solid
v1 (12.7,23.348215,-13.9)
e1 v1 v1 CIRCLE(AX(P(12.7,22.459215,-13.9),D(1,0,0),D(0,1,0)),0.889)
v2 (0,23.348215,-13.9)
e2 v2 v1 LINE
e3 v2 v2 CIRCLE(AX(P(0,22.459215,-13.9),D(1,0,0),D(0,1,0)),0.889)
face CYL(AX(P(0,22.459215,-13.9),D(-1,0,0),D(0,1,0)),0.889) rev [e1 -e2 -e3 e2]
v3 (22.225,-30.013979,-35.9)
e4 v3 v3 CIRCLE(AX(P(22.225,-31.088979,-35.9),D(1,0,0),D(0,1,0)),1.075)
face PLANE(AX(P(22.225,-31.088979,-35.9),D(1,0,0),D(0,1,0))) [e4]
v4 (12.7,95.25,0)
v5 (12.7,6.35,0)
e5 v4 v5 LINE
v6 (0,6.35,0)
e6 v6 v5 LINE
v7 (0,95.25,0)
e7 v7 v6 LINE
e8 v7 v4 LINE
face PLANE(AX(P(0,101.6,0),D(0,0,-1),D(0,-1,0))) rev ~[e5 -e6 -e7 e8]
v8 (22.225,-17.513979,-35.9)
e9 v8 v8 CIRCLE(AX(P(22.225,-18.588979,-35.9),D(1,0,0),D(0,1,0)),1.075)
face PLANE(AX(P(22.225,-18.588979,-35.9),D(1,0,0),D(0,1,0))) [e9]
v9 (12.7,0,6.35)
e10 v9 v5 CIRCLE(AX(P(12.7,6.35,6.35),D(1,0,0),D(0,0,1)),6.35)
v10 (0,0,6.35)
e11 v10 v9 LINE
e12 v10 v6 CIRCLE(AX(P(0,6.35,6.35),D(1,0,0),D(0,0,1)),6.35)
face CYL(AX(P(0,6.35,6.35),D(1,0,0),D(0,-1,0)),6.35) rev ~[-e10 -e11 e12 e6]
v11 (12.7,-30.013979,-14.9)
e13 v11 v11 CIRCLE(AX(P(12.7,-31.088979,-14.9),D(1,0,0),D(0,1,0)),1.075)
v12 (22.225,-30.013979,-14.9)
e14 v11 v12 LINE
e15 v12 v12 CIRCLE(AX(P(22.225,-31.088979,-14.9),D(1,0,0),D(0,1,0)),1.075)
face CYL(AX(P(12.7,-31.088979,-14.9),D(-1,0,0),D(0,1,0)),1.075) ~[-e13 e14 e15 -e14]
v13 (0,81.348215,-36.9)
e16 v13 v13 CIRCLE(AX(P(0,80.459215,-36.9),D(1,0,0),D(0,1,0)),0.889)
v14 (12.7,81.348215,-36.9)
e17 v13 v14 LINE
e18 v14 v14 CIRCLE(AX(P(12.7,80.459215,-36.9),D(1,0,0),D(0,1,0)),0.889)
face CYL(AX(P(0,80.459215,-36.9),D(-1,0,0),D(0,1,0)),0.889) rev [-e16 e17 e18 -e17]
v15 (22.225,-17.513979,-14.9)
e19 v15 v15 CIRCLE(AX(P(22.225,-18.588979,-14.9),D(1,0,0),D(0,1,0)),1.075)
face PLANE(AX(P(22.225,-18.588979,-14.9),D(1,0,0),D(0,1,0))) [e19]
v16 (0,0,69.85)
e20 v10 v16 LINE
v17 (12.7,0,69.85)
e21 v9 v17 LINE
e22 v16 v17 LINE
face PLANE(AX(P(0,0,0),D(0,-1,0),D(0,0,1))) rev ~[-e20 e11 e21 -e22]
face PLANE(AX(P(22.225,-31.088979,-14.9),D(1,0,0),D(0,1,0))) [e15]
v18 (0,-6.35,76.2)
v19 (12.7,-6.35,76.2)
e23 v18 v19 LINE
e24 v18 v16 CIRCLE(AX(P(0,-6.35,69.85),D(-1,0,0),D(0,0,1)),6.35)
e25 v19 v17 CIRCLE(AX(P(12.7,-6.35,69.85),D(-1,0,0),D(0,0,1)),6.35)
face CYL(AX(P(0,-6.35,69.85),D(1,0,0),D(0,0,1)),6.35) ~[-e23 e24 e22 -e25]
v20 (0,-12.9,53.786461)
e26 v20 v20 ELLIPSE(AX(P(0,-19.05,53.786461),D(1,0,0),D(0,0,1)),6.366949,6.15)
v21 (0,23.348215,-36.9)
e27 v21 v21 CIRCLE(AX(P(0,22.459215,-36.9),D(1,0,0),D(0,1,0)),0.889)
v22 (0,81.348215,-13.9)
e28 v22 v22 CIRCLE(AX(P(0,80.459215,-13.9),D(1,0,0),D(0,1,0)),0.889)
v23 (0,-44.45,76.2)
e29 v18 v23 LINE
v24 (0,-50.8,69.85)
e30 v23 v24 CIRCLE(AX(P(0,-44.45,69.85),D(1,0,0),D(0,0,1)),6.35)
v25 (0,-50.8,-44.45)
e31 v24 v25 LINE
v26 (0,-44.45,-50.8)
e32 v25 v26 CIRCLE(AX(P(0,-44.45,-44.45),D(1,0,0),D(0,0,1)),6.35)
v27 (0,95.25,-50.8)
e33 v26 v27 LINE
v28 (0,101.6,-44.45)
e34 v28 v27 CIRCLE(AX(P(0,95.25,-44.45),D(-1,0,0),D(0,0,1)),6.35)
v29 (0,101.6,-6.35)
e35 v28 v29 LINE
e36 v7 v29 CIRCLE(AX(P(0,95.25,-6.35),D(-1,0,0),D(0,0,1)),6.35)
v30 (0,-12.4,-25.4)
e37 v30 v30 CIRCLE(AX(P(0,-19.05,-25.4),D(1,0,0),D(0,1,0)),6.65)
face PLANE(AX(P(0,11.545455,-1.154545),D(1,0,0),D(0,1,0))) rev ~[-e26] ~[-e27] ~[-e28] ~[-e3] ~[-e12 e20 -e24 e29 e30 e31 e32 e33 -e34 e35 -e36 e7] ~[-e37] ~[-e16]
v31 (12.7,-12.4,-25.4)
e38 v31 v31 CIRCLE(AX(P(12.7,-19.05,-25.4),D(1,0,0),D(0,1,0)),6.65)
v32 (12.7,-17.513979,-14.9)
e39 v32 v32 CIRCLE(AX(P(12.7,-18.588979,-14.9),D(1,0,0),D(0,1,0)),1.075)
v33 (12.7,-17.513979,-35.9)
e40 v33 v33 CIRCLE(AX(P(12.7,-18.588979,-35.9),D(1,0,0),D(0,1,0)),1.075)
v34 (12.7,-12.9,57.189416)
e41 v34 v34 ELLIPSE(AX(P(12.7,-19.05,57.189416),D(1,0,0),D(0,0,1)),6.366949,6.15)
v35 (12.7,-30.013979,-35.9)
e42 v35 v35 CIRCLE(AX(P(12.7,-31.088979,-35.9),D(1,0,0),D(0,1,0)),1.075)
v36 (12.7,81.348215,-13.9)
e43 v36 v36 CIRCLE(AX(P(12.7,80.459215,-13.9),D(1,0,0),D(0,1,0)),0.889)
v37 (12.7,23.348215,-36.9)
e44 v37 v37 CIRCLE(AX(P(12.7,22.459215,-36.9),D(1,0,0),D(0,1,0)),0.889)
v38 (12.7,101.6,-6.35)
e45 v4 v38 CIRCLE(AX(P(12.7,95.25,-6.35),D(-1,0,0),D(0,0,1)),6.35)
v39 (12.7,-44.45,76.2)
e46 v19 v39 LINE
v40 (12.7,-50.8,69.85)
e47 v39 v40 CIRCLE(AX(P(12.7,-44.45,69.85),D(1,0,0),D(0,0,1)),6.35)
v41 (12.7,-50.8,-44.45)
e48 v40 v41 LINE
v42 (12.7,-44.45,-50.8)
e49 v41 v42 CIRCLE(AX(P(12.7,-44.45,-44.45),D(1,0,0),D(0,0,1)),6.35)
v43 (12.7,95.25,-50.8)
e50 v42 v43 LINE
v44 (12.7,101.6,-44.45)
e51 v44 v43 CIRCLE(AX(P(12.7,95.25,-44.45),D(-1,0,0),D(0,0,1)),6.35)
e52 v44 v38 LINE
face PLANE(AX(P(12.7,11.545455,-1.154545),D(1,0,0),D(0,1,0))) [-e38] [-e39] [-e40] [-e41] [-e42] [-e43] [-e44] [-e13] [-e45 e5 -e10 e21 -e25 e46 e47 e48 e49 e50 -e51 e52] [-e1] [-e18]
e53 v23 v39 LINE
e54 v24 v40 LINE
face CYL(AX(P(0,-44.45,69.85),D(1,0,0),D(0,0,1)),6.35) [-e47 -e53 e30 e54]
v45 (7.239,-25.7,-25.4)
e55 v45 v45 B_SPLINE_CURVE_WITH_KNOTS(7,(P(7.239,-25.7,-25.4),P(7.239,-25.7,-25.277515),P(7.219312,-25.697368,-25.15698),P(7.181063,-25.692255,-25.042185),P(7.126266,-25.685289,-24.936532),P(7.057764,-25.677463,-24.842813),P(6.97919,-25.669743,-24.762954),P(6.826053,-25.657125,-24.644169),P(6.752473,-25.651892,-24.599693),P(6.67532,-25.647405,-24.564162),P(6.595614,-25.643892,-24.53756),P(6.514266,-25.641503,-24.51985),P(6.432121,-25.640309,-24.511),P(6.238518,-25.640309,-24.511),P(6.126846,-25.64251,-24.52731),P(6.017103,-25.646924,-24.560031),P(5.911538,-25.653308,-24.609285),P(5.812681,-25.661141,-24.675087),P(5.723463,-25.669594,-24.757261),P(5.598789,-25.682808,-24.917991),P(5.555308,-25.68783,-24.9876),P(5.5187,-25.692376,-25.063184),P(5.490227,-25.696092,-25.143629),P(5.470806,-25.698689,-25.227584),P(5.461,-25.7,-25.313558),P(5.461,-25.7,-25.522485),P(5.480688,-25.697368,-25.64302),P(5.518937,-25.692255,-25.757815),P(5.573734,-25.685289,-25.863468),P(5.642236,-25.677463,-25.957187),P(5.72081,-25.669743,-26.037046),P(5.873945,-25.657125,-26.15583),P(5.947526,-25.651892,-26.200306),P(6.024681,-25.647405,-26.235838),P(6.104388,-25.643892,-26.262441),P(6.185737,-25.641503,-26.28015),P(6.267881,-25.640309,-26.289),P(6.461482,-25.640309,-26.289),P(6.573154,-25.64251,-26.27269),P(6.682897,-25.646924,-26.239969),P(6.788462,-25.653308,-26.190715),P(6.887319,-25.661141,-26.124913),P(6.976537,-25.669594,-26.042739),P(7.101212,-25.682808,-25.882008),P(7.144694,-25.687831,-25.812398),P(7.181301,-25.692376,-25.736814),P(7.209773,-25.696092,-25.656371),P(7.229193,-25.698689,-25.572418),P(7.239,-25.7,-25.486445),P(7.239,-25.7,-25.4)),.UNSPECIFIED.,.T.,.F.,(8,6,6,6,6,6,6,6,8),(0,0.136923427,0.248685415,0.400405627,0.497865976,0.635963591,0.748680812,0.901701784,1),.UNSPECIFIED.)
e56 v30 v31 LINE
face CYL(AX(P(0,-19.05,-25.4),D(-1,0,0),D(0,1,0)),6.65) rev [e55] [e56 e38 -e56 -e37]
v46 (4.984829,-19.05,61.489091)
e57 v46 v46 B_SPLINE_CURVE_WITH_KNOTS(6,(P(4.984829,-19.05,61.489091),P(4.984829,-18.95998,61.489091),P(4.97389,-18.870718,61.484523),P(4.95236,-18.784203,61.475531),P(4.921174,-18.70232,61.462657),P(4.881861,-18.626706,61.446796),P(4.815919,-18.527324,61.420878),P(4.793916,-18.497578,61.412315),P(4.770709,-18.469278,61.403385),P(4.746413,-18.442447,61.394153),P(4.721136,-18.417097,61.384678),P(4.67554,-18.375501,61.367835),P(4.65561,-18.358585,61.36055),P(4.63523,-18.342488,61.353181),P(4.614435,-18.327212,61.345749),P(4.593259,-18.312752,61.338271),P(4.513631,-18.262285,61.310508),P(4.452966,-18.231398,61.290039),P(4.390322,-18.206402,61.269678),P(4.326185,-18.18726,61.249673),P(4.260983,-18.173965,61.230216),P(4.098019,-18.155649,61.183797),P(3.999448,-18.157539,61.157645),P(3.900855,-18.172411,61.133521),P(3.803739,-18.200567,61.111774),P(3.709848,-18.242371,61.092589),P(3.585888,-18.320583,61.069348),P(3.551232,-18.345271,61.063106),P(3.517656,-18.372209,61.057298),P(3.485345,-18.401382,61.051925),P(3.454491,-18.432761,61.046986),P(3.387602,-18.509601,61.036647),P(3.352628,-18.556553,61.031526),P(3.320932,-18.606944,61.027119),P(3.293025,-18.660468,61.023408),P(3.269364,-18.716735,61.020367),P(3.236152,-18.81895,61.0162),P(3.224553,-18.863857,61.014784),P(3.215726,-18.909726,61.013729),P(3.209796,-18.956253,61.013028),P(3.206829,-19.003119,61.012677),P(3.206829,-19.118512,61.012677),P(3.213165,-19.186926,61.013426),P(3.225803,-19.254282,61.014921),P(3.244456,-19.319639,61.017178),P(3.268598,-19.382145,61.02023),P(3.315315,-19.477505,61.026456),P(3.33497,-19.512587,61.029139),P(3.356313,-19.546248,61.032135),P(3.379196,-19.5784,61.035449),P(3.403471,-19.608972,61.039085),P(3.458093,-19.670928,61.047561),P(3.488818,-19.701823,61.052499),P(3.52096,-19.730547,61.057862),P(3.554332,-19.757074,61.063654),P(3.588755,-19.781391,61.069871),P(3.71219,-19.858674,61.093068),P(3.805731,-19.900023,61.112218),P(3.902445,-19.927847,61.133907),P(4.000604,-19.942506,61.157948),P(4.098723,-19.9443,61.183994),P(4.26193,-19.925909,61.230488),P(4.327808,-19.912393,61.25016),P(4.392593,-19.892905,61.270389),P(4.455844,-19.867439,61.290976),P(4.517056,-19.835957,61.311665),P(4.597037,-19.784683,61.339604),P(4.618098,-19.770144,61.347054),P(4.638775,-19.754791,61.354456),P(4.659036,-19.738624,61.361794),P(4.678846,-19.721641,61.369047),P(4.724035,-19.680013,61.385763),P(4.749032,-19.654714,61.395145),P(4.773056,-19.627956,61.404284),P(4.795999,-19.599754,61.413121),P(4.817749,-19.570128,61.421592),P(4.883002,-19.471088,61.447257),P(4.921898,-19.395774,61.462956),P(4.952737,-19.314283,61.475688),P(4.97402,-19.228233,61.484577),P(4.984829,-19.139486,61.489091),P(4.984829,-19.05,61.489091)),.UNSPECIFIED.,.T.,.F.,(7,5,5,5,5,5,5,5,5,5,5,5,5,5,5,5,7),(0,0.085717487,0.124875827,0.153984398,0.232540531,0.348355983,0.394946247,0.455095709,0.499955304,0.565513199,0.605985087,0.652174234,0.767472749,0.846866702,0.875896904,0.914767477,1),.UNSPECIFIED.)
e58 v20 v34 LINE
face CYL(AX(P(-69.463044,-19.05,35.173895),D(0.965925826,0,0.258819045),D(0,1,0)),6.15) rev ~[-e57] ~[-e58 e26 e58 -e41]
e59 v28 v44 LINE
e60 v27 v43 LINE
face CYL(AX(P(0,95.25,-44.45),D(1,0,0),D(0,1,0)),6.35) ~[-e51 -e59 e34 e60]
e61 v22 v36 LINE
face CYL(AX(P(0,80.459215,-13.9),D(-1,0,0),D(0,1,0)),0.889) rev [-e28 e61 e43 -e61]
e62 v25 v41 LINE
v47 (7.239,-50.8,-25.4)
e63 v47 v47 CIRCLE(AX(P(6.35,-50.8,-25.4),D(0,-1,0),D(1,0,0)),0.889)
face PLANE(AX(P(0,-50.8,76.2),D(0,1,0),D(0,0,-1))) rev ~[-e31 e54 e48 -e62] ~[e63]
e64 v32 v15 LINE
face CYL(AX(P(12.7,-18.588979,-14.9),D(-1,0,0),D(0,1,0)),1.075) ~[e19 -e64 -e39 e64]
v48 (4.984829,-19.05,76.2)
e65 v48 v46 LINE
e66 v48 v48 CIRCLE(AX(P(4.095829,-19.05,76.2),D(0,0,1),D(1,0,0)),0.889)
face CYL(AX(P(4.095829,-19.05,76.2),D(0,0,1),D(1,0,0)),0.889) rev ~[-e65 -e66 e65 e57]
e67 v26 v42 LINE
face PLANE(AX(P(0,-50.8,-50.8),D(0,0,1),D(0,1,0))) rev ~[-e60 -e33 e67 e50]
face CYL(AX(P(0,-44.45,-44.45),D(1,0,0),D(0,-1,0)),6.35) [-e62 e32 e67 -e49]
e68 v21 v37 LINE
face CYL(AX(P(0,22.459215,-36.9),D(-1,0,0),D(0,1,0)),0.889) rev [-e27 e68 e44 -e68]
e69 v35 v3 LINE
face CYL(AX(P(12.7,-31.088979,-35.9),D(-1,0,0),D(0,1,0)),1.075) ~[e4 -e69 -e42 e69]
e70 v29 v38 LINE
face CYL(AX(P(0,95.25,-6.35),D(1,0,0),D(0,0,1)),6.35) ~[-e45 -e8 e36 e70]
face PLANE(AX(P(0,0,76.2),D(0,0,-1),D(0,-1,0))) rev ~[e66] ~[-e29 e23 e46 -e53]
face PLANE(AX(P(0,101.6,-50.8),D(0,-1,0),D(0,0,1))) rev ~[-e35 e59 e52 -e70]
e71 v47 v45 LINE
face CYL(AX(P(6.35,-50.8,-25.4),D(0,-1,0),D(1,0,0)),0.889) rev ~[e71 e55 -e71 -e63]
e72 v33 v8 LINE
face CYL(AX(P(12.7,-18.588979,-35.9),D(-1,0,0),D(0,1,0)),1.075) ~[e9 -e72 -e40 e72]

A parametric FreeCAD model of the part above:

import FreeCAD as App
import Part
import Sketcher
Q = App.Units.Quantity


def edges_at(feature, points):
    """Names of the edges that pass closest to the given points."""
    edges = feature.Shape.Edges
    near = lambda p: min(range(len(edges)), key=lambda i: edges[i].distToShape(Part.Vertex(*p))[0])
    return sorted({f"Edge{near(p) + 1}" for p in points})

doc = App.newDocument("Part")
params = doc.addObject("Spreadsheet::Sheet", "Params")
for row, (alias, value) in enumerate([
    ("sketch1_diameter", "0.07 in"),
    ("sketch1_width", "2 in"),
    ("sketch1_width2", "6 in"),
    ("sketch1_height", "5 in"),
    ("pad1_length", "0.5 in"),
    ("pad2_length", "0.375 in"),
    ("fillet_radius", "0.25 in"),
    ("fillet2_radius", "0.25 in"),
    ("fillet3_radius", "0.25 in"),
    ("sketch4_width", "5 in"),
    ("sketch5_diameter", "0.07 in"),
    ("pocket1_length", "15.188323 mm"),
    ("sketch6_diameter", "0.07 in"),
    ("pocket2_length", "25.160691 mm"),
], start=1):
    params.set(f"A{row}", alias)
    params.set(f"B{row}", "=" + value)
    params.setAlias(f"B{row}", alias)

body = doc.addObject("PartDesign::Body", "Body")

sketch1 = body.newObject("Sketcher::SketchObject", "Sketch")
sketch1.AttachmentSupport = (doc.getObject("YZ_Plane"), [""])
sketch1.MapMode = "FlatFace"
sketch1.addGeometry([
    Part.LineSegment(App.Vector(0, 76.2, 0), App.Vector(-50.8, 76.2, 0)),
    Part.LineSegment(App.Vector(-50.8, 76.2, 0), App.Vector(-50.8, -50.8, 0)),
    Part.LineSegment(App.Vector(-50.8, -50.8, 0), App.Vector(101.6, -50.8, 0)),
    Part.LineSegment(App.Vector(101.6, -50.8, 0), App.Vector(101.6, 0, 0)),
    Part.LineSegment(App.Vector(101.6, 0, 0), App.Vector(0, 0, 0)),
    Part.LineSegment(App.Vector(0, 0, 0), App.Vector(0, 76.2, 0)),
    Part.Circle(App.Vector(22.459215, -36.9, 0), App.Vector(0, 0, 1), 0.889),
    Part.Circle(App.Vector(80.459215, -36.9, 0), App.Vector(0, 0, 1), 0.889),
    Part.Circle(App.Vector(-19.05, -25.4, 0), App.Vector(0, 0, 1), 6.65),
    Part.Circle(App.Vector(22.459215, -13.9, 0), App.Vector(0, 0, 1), 0.889),
    Part.Circle(App.Vector(80.459215, -13.9, 0), App.Vector(0, 0, 1), 0.889),
], False)
sketch1.addConstraint([
    Sketcher.Constraint("Coincident", 0, 2, 1, 1),
    Sketcher.Constraint("Coincident", 1, 2, 2, 1),
    Sketcher.Constraint("Coincident", 2, 2, 3, 1),
    Sketcher.Constraint("Coincident", 3, 2, 4, 1),
    Sketcher.Constraint("Coincident", 4, 2, 5, 1),
    Sketcher.Constraint("Coincident", 5, 2, 0, 1),
    Sketcher.Constraint("Horizontal", 0),
    Sketcher.Constraint("Vertical", 1),
    Sketcher.Constraint("Horizontal", 2),
    Sketcher.Constraint("Vertical", 3),
    Sketcher.Constraint("Horizontal", 4),
    Sketcher.Constraint("Vertical", 5),
    Sketcher.Constraint("Coincident", 4, 2, -1, 1),
    Sketcher.Constraint("Equal", 6, 7),
    Sketcher.Constraint("Equal", 7, 9),
    Sketcher.Constraint("Equal", 9, 10),
    Sketcher.Constraint("Horizontal", 6, 3, 7, 3),
    Sketcher.Constraint("Horizontal", 9, 3, 10, 3),
    Sketcher.Constraint("Vertical", 6, 3, 9, 3),
    Sketcher.Constraint("Vertical", 7, 3, 10, 3),
    Sketcher.Constraint("Equal", 0, 3),
    Sketcher.Constraint("Diameter", 6, Q("0.07 in")),
    Sketcher.Constraint("DistanceX", 0, 2, 0, 1, Q("2 in")),
    Sketcher.Constraint("DistanceX", 2, 1, 2, 2, Q("6 in")),
    Sketcher.Constraint("DistanceY", 1, 2, 1, 1, Q("5 in")),
    Sketcher.Constraint("DistanceY", 8, 3, -1, 1, Q("1 in")),
    Sketcher.Constraint("Diameter", 8, 13.3),
    Sketcher.Constraint("DistanceX", 8, 3, -1, 1, Q("0.75 in")),
    Sketcher.Constraint("DistanceY", 6, 3, -1, 1, 36.9),
    Sketcher.Constraint("DistanceY", 9, 3, -1, 1, 13.9),
    Sketcher.Constraint("DistanceX", 6, 3, 7, 3, 58.0),
    Sketcher.Constraint("DistanceX", -1, 1, 6, 3, 22.459215),
])
sketch1.setExpression("Constraints[21]", "Params.sketch1_diameter")
sketch1.setExpression("Constraints[22]", "Params.sketch1_width")
sketch1.setExpression("Constraints[23]", "Params.sketch1_width2")
sketch1.setExpression("Constraints[24]", "Params.sketch1_height")
pad1 = body.newObject("PartDesign::Pad", "Pad")
pad1.Profile = sketch1
pad1.setExpression("Length", "Params.pad1_length")

sketch2 = body.newObject("Sketcher::SketchObject", "Sketch001")
sketch2.AttachmentSupport = (doc.getObject("YZ_Plane"), [""])
sketch2.MapMode = "FlatFace"
sketch2.AttachmentOffset = App.Placement(App.Vector(0, 0, 0.5 * 25.4), App.Rotation())
sketch2.addGeometry([
    Part.Circle(App.Vector(-31.088979, -14.9, 0), App.Vector(0, 0, 1), 1.075),
    Part.Circle(App.Vector(-18.588979, -14.9, 0), App.Vector(0, 0, 1), 1.075),
    Part.Circle(App.Vector(-18.588979, -35.9, 0), App.Vector(0, 0, 1), 1.075),
    Part.Circle(App.Vector(-31.088979, -35.9, 0), App.Vector(0, 0, 1), 1.075),
], False)
sketch2.addConstraint([
    Sketcher.Constraint("Equal", 0, 1),
    Sketcher.Constraint("Equal", 1, 2),
    Sketcher.Constraint("Equal", 2, 3),
    Sketcher.Constraint("Horizontal", 0, 3, 1, 3),
    Sketcher.Constraint("Horizontal", 2, 3, 3, 3),
    Sketcher.Constraint("Vertical", 1, 3, 2, 3),
    Sketcher.Constraint("Vertical", 0, 3, 3, 3),
    Sketcher.Constraint("Diameter", 0, 2.15),
    Sketcher.Constraint("DistanceY", 0, 3, -1, 1, 14.9),
    Sketcher.Constraint("DistanceY", 2, 3, -1, 1, 35.9),
    Sketcher.Constraint("DistanceX", 0, 3, 1, 3, 12.5),
    Sketcher.Constraint("DistanceX", 0, 3, -1, 1, 31.088979),
])
pad2 = body.newObject("PartDesign::Pad", "Pad001")
pad2.Profile = sketch2
pad2.setExpression("Length", "Params.pad2_length")
doc.recompute()

fillet = body.newObject("PartDesign::Fillet", "Fillet")
fillet.Base = (pad2, edges_at(pad2, [(6.35, 0, 0)]))
fillet.setExpression("Radius", "Params.fillet_radius")
doc.recompute()

fillet2 = body.newObject("PartDesign::Fillet", "Fillet001")
fillet2.Base = (fillet, edges_at(fillet, [(6.35, -50.8, -50.8), (6.35, -50.8, 76.2), (6.35, 101.6, -50.8)]))
fillet2.setExpression("Radius", "Params.fillet2_radius")
doc.recompute()

fillet3 = body.newObject("PartDesign::Fillet", "Fillet002")
fillet3.Base = (fillet2, edges_at(fillet2, [(6.35, 0, 76.2), (6.35, 101.6, 0)]))
fillet3.setExpression("Radius", "Params.fillet3_radius")

sketch3 = body.newObject("Sketcher::SketchObject", "Sketch002")
sketch3.Placement = App.Placement(App.Vector(66.656151, 0, 17.860462), App.Rotation(App.Vector(0, 1, 0), App.Vector(-0.258819045, 0, 0.965925826), App.Vector(0.965925826, 0, 0.258819045), "ZXY"))
sketch3.addGeometry(Part.Circle(App.Vector(-19.05, 51.953732, 0), App.Vector(0, 0, 1), 6.15), False)
sketch3.addConstraint([
    Sketcher.Constraint("Diameter", 0, 12.3),
    Sketcher.Constraint("DistanceX", 0, 3, -1, 1, Q("0.75 in")),
    Sketcher.Constraint("DistanceY", -1, 1, 0, 3, 51.953732),
])

sketch4 = body.newObject("Sketcher::SketchObject", "Sketch003")
sketch4.Placement = App.Placement(App.Vector(-13.446615, 0, 50.183451), App.Rotation(App.Vector(0.965925826, 0, 0.258819045), App.Vector(0, 0.999999999, 0), App.Vector(-0.258819045, 0, 0.965925826), "ZXY"))
sketch4.addGeometry(Part.LineSegment(App.Vector(-57.992474, -19.05, 0), App.Vector(69.007526, -19.05, 0)), False)
sketch4.addConstraint([
    Sketcher.Constraint("Horizontal", 0),
    Sketcher.Constraint("DistanceX", 0, 1, 0, 2, Q("5 in")),
    Sketcher.Constraint("DistanceY", 0, 1, -1, 1, Q("0.75 in")),
    Sketcher.Constraint("DistanceX", 0, 1, -1, 1, 57.992474),
])
sketch4.setExpression("Constraints[1]", "Params.sketch4_width")
doc.recompute()

subtractivepipe = body.newObject("PartDesign::SubtractivePipe", "SubtractivePipe")
subtractivepipe.Profile = sketch3
subtractivepipe.Spine = (sketch4, ["Edge1"])

sketch5 = body.newObject("Sketcher::SketchObject", "Sketch004")
sketch5.AttachmentSupport = (doc.getObject("XY_Plane"), [""])
sketch5.MapMode = "FlatFace"
sketch5.AttachmentOffset = App.Placement(App.Vector(0, 0, 3 * 25.4), App.Rotation())
sketch5.addGeometry(Part.Circle(App.Vector(4.095829, -19.05, 0), App.Vector(0, 0, 1), 0.889), False)
sketch5.addConstraint([
    Sketcher.Constraint("Diameter", 0, Q("0.07 in")),
    Sketcher.Constraint("DistanceY", 0, 3, -1, 1, Q("0.75 in")),
    Sketcher.Constraint("DistanceX", -1, 1, 0, 3, 4.095829),
])
sketch5.setExpression("Constraints[0]", "Params.sketch5_diameter")
pocket1 = body.newObject("PartDesign::Pocket", "Pocket")
pocket1.Profile = sketch5
pocket1.setExpression("Length", "Params.pocket1_length")

sketch6 = body.newObject("Sketcher::SketchObject", "Sketch005")
sketch6.AttachmentSupport = (doc.getObject("XZ_Plane"), [""])
sketch6.MapMode = "FlatFace"
sketch6.AttachmentOffset = App.Placement(App.Vector(0, 0, 2 * 25.4), App.Rotation())
sketch6.addGeometry(Part.Circle(App.Vector(6.35, -25.4, 0), App.Vector(0, 0, 1), 0.889), False)
sketch6.addConstraint([
    Sketcher.Constraint("Diameter", 0, Q("0.07 in")),
    Sketcher.Constraint("DistanceY", 0, 3, -1, 1, Q("1 in")),
    Sketcher.Constraint("DistanceX", -1, 1, 0, 3, Q("0.25 in")),
])
sketch6.setExpression("Constraints[0]", "Params.sketch6_diameter")
pocket2 = body.newObject("PartDesign::Pocket", "Pocket001")
pocket2.Profile = sketch6
pocket2.setExpression("Length", "Params.pocket2_length")

doc.recompute()
